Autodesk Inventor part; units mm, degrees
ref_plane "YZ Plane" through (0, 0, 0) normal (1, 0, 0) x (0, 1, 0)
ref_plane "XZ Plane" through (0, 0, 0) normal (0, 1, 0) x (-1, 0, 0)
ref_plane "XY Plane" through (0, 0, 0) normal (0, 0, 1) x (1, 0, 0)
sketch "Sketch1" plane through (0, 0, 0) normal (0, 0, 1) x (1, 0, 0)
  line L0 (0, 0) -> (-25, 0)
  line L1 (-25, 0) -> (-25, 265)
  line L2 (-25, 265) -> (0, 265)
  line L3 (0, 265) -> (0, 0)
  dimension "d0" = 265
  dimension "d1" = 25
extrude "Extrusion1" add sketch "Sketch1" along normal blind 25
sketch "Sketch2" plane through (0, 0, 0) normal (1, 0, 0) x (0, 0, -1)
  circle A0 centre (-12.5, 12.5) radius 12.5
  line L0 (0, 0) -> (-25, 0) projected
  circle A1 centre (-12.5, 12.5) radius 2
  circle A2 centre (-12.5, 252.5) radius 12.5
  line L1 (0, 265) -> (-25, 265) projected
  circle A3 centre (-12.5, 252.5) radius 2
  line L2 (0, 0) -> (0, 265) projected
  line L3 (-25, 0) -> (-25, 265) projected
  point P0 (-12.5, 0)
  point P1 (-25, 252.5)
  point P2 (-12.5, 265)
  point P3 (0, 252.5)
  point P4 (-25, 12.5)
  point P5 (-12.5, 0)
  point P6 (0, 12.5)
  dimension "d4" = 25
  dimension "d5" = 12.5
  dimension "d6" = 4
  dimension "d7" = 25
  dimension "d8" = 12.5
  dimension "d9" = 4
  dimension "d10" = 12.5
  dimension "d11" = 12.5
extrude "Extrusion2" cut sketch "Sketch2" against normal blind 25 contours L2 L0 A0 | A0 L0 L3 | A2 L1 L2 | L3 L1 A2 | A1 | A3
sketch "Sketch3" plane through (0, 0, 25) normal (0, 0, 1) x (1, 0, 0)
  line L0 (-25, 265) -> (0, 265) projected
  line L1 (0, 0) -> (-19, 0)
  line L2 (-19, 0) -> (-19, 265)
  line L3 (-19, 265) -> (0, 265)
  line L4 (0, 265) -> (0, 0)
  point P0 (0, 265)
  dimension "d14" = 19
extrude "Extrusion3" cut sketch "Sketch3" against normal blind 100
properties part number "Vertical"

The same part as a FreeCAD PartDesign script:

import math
import FreeCAD as App
import Part
import Sketcher
from FreeCAD import Vector

doc = App.newDocument("Part")
body = doc.addObject("PartDesign::Body", "Body")

# Sketch on XY plane
sketch1 = doc.addObject("Sketcher::SketchObject", "Sketch")
body.addObject(sketch1)
sketch1.AttachmentSupport = (doc.XY_Plane, [""])
sketch1.MapMode = "FlatFace"
sketch1.addGeometry(Part.LineSegment(Vector(-25, 0, 0), Vector(0, 0, 0)), False)
sketch1.addGeometry(Part.LineSegment(Vector(0, 0, 0), Vector(0, 265, 0)), False)
sketch1.addGeometry(Part.LineSegment(Vector(0, 265, 0), Vector(-25, 265, 0)), False)
sketch1.addGeometry(Part.LineSegment(Vector(-25, 265, 0), Vector(-25, 0, 0)), False)
sketch1.addConstraint(Sketcher.Constraint("Coincident", 0, 2, 1, 1))
sketch1.addConstraint(Sketcher.Constraint("Coincident", 1, 2, 2, 1))
sketch1.addConstraint(Sketcher.Constraint("Coincident", 2, 2, 3, 1))
sketch1.addConstraint(Sketcher.Constraint("Coincident", 3, 2, 0, 1))
sketch1.addConstraint(Sketcher.Constraint("Horizontal", 0))
sketch1.addConstraint(Sketcher.Constraint("Vertical", 1))
sketch1.addConstraint(Sketcher.Constraint("Horizontal", 2))
sketch1.addConstraint(Sketcher.Constraint("Vertical", 3))
sketch1.addConstraint(Sketcher.Constraint("Coincident", 0, 2, -1, 1))
sketch1.addConstraint(Sketcher.Constraint("DistanceX", 0, 1, 0, 2, 25.0))
sketch1.addConstraint(Sketcher.Constraint("DistanceY", 1, 1, 1, 2, 265.0))
pad1 = doc.addObject("PartDesign::Pad", "Pad")
body.addObject(pad1)
pad1.Profile = sketch1
pad1.Length = 25

# Sketch on YZ plane
sketch2 = doc.addObject("Sketcher::SketchObject", "Sketch001")
body.addObject(sketch2)
sketch2.AttachmentSupport = (doc.YZ_Plane, [""])
sketch2.MapMode = "FlatFace"
sketch2.addGeometry(Part.LineSegment(Vector(0, 0, 0), Vector(12.5, 0, 0)), False)
sketch2.addGeometry(Part.ArcOfCircle(Part.Circle(Vector(12.5, 12.5, 0), Vector(0, 0, 1), 12.5), math.radians(180), math.radians(270)), False)
sketch2.addGeometry(Part.LineSegment(Vector(0, 12.5, 0), Vector(0, 0, 0)), False)
sketch2.addGeometry(Part.ArcOfCircle(Part.Circle(Vector(12.5, 12.5, 0), Vector(0, 0, 1), 12.5), math.radians(90), math.radians(180)), False)
sketch2.addGeometry(Part.LineSegment(Vector(12.5, 25, 0), Vector(0, 25, 0)), False)
sketch2.addGeometry(Part.LineSegment(Vector(0, 25, 0), Vector(0, 12.5, 0)), False)
sketch2.addGeometry(Part.ArcOfCircle(Part.Circle(Vector(252.5, 12.5, 0), Vector(0, 0, 1), 12.5), math.radians(-90), math.radians(0)), False)
sketch2.addGeometry(Part.LineSegment(Vector(252.5, 0, 0), Vector(265, 0, 0)), False)
sketch2.addGeometry(Part.LineSegment(Vector(265, 0, 0), Vector(265, 12.5, 0)), False)
sketch2.addGeometry(Part.LineSegment(Vector(265, 25, 0), Vector(252.5, 25, 0)), False)
sketch2.addGeometry(Part.ArcOfCircle(Part.Circle(Vector(252.5, 12.5, 0), Vector(0, 0, 1), 12.5), math.radians(0), math.radians(90)), False)
sketch2.addGeometry(Part.LineSegment(Vector(265, 12.5, 0), Vector(265, 25, 0)), False)
sketch2.addGeometry(Part.Circle(Vector(12.5, 12.5, 0), Vector(0, 0, 1), 2), False)
sketch2.addGeometry(Part.Circle(Vector(252.5, 12.5, 0), Vector(0, 0, 1), 2), False)
sketch2.addConstraint(Sketcher.Constraint("Tangent", 0, 2, 1, 2))
sketch2.addConstraint(Sketcher.Constraint("Tangent", 1, 1, 2, 1))
sketch2.addConstraint(Sketcher.Constraint("Coincident", 2, 2, 0, 1))
sketch2.addConstraint(Sketcher.Constraint("Tangent", 3, 1, 4, 1))
sketch2.addConstraint(Sketcher.Constraint("Coincident", 4, 2, 5, 1))
sketch2.addConstraint(Sketcher.Constraint("Tangent", 5, 2, 3, 2))
sketch2.addConstraint(Sketcher.Constraint("Tangent", 6, 1, 7, 1))
sketch2.addConstraint(Sketcher.Constraint("Coincident", 7, 2, 8, 1))
sketch2.addConstraint(Sketcher.Constraint("Tangent", 8, 2, 6, 2))
sketch2.addConstraint(Sketcher.Constraint("Tangent", 9, 2, 10, 2))
sketch2.addConstraint(Sketcher.Constraint("Tangent", 10, 1, 11, 1))
sketch2.addConstraint(Sketcher.Constraint("Coincident", 11, 2, 9, 1))
sketch2.addConstraint(Sketcher.Constraint("Horizontal", 0))
sketch2.addConstraint(Sketcher.Constraint("Vertical", 2))
sketch2.addConstraint(Sketcher.Constraint("Horizontal", 4))
sketch2.addConstraint(Sketcher.Constraint("Vertical", 5))
sketch2.addConstraint(Sketcher.Constraint("Horizontal", 7))
sketch2.addConstraint(Sketcher.Constraint("Vertical", 8))
sketch2.addConstraint(Sketcher.Constraint("Horizontal", 9))
sketch2.addConstraint(Sketcher.Constraint("Vertical", 11))
sketch2.addConstraint(Sketcher.Constraint("Coincident", 2, 2, -1, 1))
sketch2.addConstraint(Sketcher.Constraint("Coincident", 3, 3, 1, 3))
sketch2.addConstraint(Sketcher.Constraint("Coincident", 10, 3, 6, 3))
sketch2.addConstraint(Sketcher.Constraint("Coincident", 12, 3, 1, 3))
sketch2.addConstraint(Sketcher.Constraint("Coincident", 13, 3, 6, 3))
sketch2.addConstraint(Sketcher.Constraint("Equal", 1, 3))
sketch2.addConstraint(Sketcher.Constraint("Equal", 3, 6))
sketch2.addConstraint(Sketcher.Constraint("Equal", 6, 10))
sketch2.addConstraint(Sketcher.Constraint("Equal", 12, 13))
sketch2.addConstraint(Sketcher.Constraint("PointOnObject", 6, 1, -1))
sketch2.addConstraint(Sketcher.Constraint("Diameter", 12, 4.0))
sketch2.addConstraint(Sketcher.Constraint("Radius", 1, 12.5))
sketch2.addConstraint(Sketcher.Constraint("DistanceX", -1, 1, 7, 2, 265.0))
pocket1 = doc.addObject("PartDesign::Pocket", "Pocket")
body.addObject(pocket1)
pocket1.Profile = sketch2
pocket1.Length = 25

# Sketch on XY plane
sketch3 = doc.addObject("Sketcher::SketchObject", "Sketch002")
body.addObject(sketch3)
sketch3.AttachmentSupport = (doc.XY_Plane, [""])
sketch3.MapMode = "FlatFace"
sketch3.AttachmentOffset = App.Placement(Vector(0, 0, 25), App.Rotation())
sketch3.addGeometry(Part.LineSegment(Vector(0, 265, 0), Vector(-19, 265, 0)), False)
sketch3.addGeometry(Part.LineSegment(Vector(-19, 265, 0), Vector(-19, 0, 0)), False)
sketch3.addGeometry(Part.LineSegment(Vector(-19, 0, 0), Vector(0, 0, 0)), False)
sketch3.addGeometry(Part.LineSegment(Vector(0, 0, 0), Vector(0, 265, 0)), False)
sketch3.addConstraint(Sketcher.Constraint("Coincident", 0, 2, 1, 1))
sketch3.addConstraint(Sketcher.Constraint("Coincident", 1, 2, 2, 1))
sketch3.addConstraint(Sketcher.Constraint("Coincident", 2, 2, 3, 1))
sketch3.addConstraint(Sketcher.Constraint("Coincident", 3, 2, 0, 1))
sketch3.addConstraint(Sketcher.Constraint("Horizontal", 0))
sketch3.addConstraint(Sketcher.Constraint("Vertical", 1))
sketch3.addConstraint(Sketcher.Constraint("Horizontal", 2))
sketch3.addConstraint(Sketcher.Constraint("Vertical", 3))
sketch3.addConstraint(Sketcher.Constraint("Coincident", 2, 2, -1, 1))
sketch3.addConstraint(Sketcher.Constraint("DistanceX", 0, 2, 0, 1, 19.0))
sketch3.addConstraint(Sketcher.Constraint("DistanceY", 1, 2, 1, 1, 265.0))
pocket2 = doc.addObject("PartDesign::Pocket", "Pocket001")
body.addObject(pocket2)
pocket2.Profile = sketch3
pocket2.Length = 100

doc.recompute()
